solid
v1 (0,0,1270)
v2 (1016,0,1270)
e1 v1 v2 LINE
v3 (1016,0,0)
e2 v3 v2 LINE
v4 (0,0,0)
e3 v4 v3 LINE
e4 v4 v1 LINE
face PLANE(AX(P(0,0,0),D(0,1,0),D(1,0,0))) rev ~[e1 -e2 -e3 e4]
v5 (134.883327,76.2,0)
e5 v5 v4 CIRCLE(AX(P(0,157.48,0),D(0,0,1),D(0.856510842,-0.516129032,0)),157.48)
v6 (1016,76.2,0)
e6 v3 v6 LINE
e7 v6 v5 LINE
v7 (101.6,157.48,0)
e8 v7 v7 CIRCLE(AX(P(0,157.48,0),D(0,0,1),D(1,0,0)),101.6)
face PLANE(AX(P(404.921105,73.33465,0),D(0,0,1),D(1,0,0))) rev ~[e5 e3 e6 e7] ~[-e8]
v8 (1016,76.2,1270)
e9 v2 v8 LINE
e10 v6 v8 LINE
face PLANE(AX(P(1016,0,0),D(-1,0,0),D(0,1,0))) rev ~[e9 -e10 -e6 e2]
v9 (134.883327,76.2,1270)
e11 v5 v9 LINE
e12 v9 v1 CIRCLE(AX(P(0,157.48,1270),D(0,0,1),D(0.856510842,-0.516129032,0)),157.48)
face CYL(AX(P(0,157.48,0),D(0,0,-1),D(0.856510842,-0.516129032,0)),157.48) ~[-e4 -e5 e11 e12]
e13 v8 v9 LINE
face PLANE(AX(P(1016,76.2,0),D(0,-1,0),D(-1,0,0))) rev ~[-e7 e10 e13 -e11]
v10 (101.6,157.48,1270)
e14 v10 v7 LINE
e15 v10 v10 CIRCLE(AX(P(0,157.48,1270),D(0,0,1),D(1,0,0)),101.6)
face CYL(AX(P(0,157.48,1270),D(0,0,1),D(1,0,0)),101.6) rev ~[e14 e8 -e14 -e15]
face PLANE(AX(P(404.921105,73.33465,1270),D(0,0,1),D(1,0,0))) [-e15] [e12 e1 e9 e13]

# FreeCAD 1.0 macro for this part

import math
import FreeCAD as App
import Part
import Sketcher

V = App.Vector
Q = App.Units.Quantity

doc = App.newDocument("Part")
params = doc.addObject("Spreadsheet::Sheet", "Params")
for row, (alias, value) in enumerate([
    ("sketch1_radius", "6.2 in"),
    ("sketch1_width", "40 in"),
    ("sketch1_height", "3 in"),
    ("pad1_length", "50 in"),
    ("sketch2_diameter", "8 in"),
], start=1):
    params.set(f"A{row}", alias)
    params.set(f"B{row}", "=" + value)
    params.setAlias(f"B{row}", alias)

body = doc.addObject("PartDesign::Body", "Body")

# Sketch on XY plane
sketch1 = body.newObject("Sketcher::SketchObject", "Sketch")
sketch1.AttachmentSupport = (doc.getObject("XY_Plane"), [""])
sketch1.MapMode = "FlatFace"
sketch1.addGeometry(Part.ArcOfCircle(Part.Circle(V(0, 157.48, 0), V(0, 0, 1), 157.48), math.radians(-31.072951), math.radians(270)), False)
sketch1.addGeometry(Part.LineSegment(V(0, 0, 0), V(1016, 0, 0)), False)
sketch1.addGeometry(Part.LineSegment(V(1016, 0, 0), V(1016, 76.2, 0)), False)
sketch1.addGeometry(Part.LineSegment(V(1016, 76.2, 0), V(134.883327, 76.2, 0)), False)
sketch1.addConstraint(Sketcher.Constraint("Tangent", 0, 2, 1, 1))
sketch1.addConstraint(Sketcher.Constraint("Coincident", 1, 2, 2, 1))
sketch1.addConstraint(Sketcher.Constraint("Coincident", 2, 2, 3, 1))
sketch1.addConstraint(Sketcher.Constraint("Coincident", 3, 2, 0, 1))
sketch1.addConstraint(Sketcher.Constraint("Horizontal", 1))
sketch1.addConstraint(Sketcher.Constraint("Vertical", 2))
sketch1.addConstraint(Sketcher.Constraint("Horizontal", 3))
sketch1.addConstraint(Sketcher.Constraint("Coincident", 0, 2, -1, 1))
sketch1.addConstraint(Sketcher.Constraint("Radius", 0, Q("6.2 in")))
sketch1.addConstraint(Sketcher.Constraint("DistanceX", 1, 1, 1, 2, Q("40 in")))
sketch1.addConstraint(Sketcher.Constraint("DistanceY", 2, 1, 2, 2, Q("3 in")))
sketch1.setExpression("Constraints[8]", "Params.sketch1_radius")
sketch1.setExpression("Constraints[9]", "Params.sketch1_width")
sketch1.setExpression("Constraints[10]", "Params.sketch1_height")
pad1 = body.newObject("PartDesign::Pad", "Pad")
pad1.Profile = sketch1
pad1.setExpression("Length", "Params.pad1_length")

# Sketch on XY plane
sketch2 = body.newObject("Sketcher::SketchObject", "Sketch001")
sketch2.AttachmentSupport = (doc.getObject("XY_Plane"), [""])
sketch2.MapMode = "FlatFace"
sketch2.AttachmentOffset = App.Placement(V(0, 0, 50 * 25.4), App.Rotation())
sketch2.addGeometry(Part.Circle(V(0, 157.48, 0), V(0, 0, 1), 101.6), False)
sketch2.addConstraint(Sketcher.Constraint("PointOnObject", 0, 3, -2))
sketch2.addConstraint(Sketcher.Constraint("Diameter", 0, Q("8 in")))
sketch2.addConstraint(Sketcher.Constraint("DistanceY", -1, 1, 0, 3, Q("6.2 in")))
sketch2.setExpression("Constraints[1]", "Params.sketch2_diameter")
pocket1 = body.newObject("PartDesign::Pocket", "Pocket")
pocket1.Profile = sketch2
pocket1.Type = "ThroughAll"

doc.recompute()
